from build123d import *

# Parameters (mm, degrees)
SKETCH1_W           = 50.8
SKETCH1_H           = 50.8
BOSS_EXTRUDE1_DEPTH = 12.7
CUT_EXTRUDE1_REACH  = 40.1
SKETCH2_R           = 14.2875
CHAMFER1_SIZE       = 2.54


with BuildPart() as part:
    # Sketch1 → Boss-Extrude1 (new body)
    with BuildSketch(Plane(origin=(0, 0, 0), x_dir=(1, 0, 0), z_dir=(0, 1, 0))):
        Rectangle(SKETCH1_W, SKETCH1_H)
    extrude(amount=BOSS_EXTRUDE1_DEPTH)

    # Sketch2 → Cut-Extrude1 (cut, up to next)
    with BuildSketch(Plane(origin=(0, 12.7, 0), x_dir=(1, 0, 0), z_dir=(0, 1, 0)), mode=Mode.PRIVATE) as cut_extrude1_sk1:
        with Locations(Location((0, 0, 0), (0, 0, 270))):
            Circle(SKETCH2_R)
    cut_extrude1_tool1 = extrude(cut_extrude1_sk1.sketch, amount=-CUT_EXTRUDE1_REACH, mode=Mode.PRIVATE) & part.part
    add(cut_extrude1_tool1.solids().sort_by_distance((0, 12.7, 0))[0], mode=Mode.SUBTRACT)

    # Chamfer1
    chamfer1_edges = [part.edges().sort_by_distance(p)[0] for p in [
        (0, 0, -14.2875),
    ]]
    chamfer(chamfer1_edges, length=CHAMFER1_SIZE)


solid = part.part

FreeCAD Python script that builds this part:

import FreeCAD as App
import Part
import Sketcher

V = App.Vector
Q = App.Units.Quantity


def edges_at(feature, points):
    """Names of the edges that pass closest to the given points."""
    edges = feature.Shape.Edges
    near = lambda p: min(range(len(edges)), key=lambda i: edges[i].distToShape(Part.Vertex(*p))[0])
    return sorted({f"Edge{near(p) + 1}" for p in points})

doc = App.newDocument("Part")
body = doc.addObject("PartDesign::Body", "Body")

# Sketch on XZ plane
sketch1 = body.newObject("Sketcher::SketchObject", "Sketch")
sketch1.AttachmentSupport = (doc.getObject("XZ_Plane"), [""])
sketch1.MapMode = "FlatFace"
sketch1.addGeometry([
    Part.LineSegment(V(-25, -25, 0), V(-25, 25, 0)),
    Part.LineSegment(V(-25, 25, 0), V(25, 25, 0)),
    Part.LineSegment(V(25, 25, 0), V(25, -25, 0)),
    Part.LineSegment(V(25, -25, 0), V(-25, -25, 0)),
], False)
sketch1.addConstraint([
    Sketcher.Constraint("Coincident", 0, 2, 1, 1),
    Sketcher.Constraint("Coincident", 1, 2, 2, 1),
    Sketcher.Constraint("Coincident", 2, 2, 3, 1),
    Sketcher.Constraint("Coincident", 3, 2, 0, 1),
    Sketcher.Constraint("Vertical", 0),
    Sketcher.Constraint("Horizontal", 1),
    Sketcher.Constraint("Vertical", 2),
    Sketcher.Constraint("Horizontal", 3),
    Sketcher.Constraint("Symmetric", 0, 2, 2, 2, -1, 1),
    Sketcher.Constraint("Equal", 3, 0),
    Sketcher.Constraint("DistanceX", 1, 1, 1, 2, Q("2 in")),
])
pad1 = body.newObject("PartDesign::Pad", "Pad")
pad1.Profile = sketch1
pad1.Length = Q("0.5 in")
pad1.Reversed = True

# Sketch on XZ plane
sketch2 = body.newObject("Sketcher::SketchObject", "Sketch001")
sketch2.AttachmentSupport = (doc.getObject("XZ_Plane"), [""])
sketch2.MapMode = "FlatFace"
sketch2.AttachmentOffset = App.Placement(V(0, 0, -0.5 * 25.4), App.Rotation())
sketch2.addGeometry(Part.Circle(V(0, 0, 0), V(0, 0, 1), 14), False)
sketch2.addConstraint([
    Sketcher.Constraint("Coincident", 0, 3, -1, 1),
    Sketcher.Constraint("Diameter", 0, Q("1.125 in")),
])
pocket1 = body.newObject("PartDesign::Pocket", "Pocket")
pocket1.Profile = sketch2
pocket1.Type = "UpToFirst"
pocket1.Reversed = True
doc.recompute()

chamfer = body.newObject("PartDesign::Chamfer", "Chamfer")
chamfer.Base = (pocket1, edges_at(pocket1, [(0, 0, -14.287)]))
chamfer.Size = Q("0.1 in")

doc.recompute()
